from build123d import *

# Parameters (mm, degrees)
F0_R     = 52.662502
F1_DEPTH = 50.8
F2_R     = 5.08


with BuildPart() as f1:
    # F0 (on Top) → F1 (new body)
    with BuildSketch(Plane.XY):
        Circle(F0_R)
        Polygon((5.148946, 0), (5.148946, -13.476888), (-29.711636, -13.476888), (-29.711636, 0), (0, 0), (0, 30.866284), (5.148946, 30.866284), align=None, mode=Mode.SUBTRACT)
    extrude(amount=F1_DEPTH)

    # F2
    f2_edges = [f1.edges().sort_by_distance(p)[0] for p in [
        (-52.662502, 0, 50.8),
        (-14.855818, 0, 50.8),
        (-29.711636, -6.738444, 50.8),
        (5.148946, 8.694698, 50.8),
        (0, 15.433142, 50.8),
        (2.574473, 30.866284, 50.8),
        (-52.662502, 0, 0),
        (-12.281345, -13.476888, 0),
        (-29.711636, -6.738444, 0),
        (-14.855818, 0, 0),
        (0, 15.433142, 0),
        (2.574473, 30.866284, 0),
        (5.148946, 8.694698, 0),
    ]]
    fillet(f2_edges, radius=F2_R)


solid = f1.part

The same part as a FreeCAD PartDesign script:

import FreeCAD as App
import Part
import Sketcher
Q = App.Units.Quantity


def edges_at(feature, points):
    """Names of the edges that pass closest to the given points."""
    edges = feature.Shape.Edges
    near = lambda p: min(range(len(edges)), key=lambda i: edges[i].distToShape(Part.Vertex(*p))[0])
    return sorted({f"Edge{near(p) + 1}" for p in points})


def add_polygon(sketch, points):
    """Adds a closed chain of lines whose ends are joined by coincident constraints."""
    first, n = sketch.GeometryCount, len(points)
    for a, b in zip(points, points[1:] + points[:1]):
        sketch.addGeometry(Part.LineSegment(App.Vector(*a, 0), App.Vector(*b, 0)), False)
    for i in range(n):
        sketch.addConstraint(Sketcher.Constraint("Coincident", first + i, 2, first + (i + 1) % n, 1))

doc = App.newDocument("Part")
params = doc.addObject("Spreadsheet::Sheet", "Params")
for row, (alias, value) in enumerate([
    ("pad1_length", "2 in"),
    ("fillet_radius", "0.2 in"),
], start=1):
    params.set(f"A{row}", alias)
    params.set(f"B{row}", "=" + value)
    params.setAlias(f"B{row}", alias)

body = doc.addObject("PartDesign::Body", "Body")

# Sketch on XY plane
sketch1 = body.newObject("Sketcher::SketchObject", "Sketch")
sketch1.AttachmentSupport = (doc.getObject("XY_Plane"), [""])
sketch1.MapMode = "FlatFace"
sketch1.addGeometry(Part.Circle(App.Vector(0, 0, 0), App.Vector(0, 0, 1), 52.662502), False)  # 0
add_polygon(sketch1, [(5.148946, 30.866284), (5.148946, -13.476888), (-29.711636, -13.476888), (-29.711636, 0), (0, 0), (0, 30.866284)])  # lines 1-6
sketch1.addConstraint([
    Sketcher.Constraint("Vertical", 1),
    Sketcher.Constraint("Horizontal", 2),
    Sketcher.Constraint("Vertical", 3),
    Sketcher.Constraint("Horizontal", 4),
    Sketcher.Constraint("Vertical", 5),
    Sketcher.Constraint("Horizontal", 6),
    Sketcher.Constraint("Coincident", 0, 3, -1, 1),
    Sketcher.Constraint("Coincident", 4, 2, -1, 1),
    Sketcher.Constraint("Diameter", 0, Q("105.325004 mm")),
    Sketcher.Constraint("DistanceY", 3, 1, 3, 2, Q("13.476888 mm")),
    Sketcher.Constraint("DistanceX", 2, 2, 2, 1, Q("34.860582 mm")),
    Sketcher.Constraint("DistanceX", 4, 1, 4, 2, Q("29.711636 mm")),
    Sketcher.Constraint("DistanceY", 1, 2, 1, 1, Q("44.343172 mm")),
])
pad1 = body.newObject("PartDesign::Pad", "Pad")
pad1.Profile = sketch1
pad1.setExpression("Length", "Params.pad1_length")
doc.recompute()

fillet = body.newObject("PartDesign::Fillet", "Fillet")
fillet.Base = (pad1, edges_at(pad1, [
    (-52.663, 0, 50.8),
    (-14.856, 0, 50.8),
    (-29.712, -6.738, 50.8),
    (5.149, 8.695, 50.8),
    (0, 15.433, 50.8),
    (2.574, 30.866, 50.8),
    (-52.663, 0, 0),
    (-12.281, -13.477, 0),
    (-29.712, -6.738, 0),
    (-14.856, 0, 0),
    (0, 15.433, 0),
    (2.574, 30.866, 0),
    (5.149, 8.695, 0),
]))
fillet.setExpression("Radius", "Params.fillet_radius")

doc.recompute()
